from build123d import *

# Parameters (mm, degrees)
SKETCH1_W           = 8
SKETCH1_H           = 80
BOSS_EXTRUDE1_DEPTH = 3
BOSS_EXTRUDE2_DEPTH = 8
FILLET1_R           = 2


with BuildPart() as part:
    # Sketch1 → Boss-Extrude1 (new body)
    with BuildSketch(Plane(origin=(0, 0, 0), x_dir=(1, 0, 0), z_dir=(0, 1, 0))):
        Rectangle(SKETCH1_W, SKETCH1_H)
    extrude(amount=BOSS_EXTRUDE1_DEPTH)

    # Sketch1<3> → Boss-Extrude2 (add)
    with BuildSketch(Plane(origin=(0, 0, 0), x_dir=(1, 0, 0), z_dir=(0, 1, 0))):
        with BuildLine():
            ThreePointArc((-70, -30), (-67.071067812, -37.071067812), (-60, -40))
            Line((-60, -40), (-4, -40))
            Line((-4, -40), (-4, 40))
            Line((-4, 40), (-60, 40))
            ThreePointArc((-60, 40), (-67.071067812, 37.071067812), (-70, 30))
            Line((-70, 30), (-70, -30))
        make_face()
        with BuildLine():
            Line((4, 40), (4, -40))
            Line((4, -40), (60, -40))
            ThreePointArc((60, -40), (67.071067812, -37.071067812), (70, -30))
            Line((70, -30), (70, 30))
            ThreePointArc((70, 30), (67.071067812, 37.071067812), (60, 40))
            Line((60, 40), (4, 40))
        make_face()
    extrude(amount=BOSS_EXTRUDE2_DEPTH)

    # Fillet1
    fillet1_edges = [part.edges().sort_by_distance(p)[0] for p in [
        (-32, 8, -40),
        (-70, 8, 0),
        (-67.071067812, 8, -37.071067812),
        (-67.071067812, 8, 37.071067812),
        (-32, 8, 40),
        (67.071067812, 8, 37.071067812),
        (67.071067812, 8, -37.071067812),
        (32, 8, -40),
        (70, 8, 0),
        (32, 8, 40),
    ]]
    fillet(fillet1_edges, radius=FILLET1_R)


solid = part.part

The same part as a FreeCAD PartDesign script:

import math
import FreeCAD as App
import Part
import Sketcher

V = App.Vector
Q = App.Units.Quantity


def edges_at(feature, points):
    """Names of the edges that pass closest to the given points."""
    edges = feature.Shape.Edges
    near = lambda p: min(range(len(edges)), key=lambda i: edges[i].distToShape(Part.Vertex(*p))[0])
    return sorted({f"Edge{near(p) + 1}" for p in points})

doc = App.newDocument("Part")
body = doc.addObject("PartDesign::Body", "Body")

# Sketch on XZ plane
sketch1 = doc.addObject("Sketcher::SketchObject", "Sketch")
body.addObject(sketch1)
sketch1.AttachmentSupport = (doc.XZ_Plane, [""])
sketch1.MapMode = "FlatFace"
sketch1.addGeometry(Part.LineSegment(V(-4, -40, 0), V(-4, 40, 0)), False)
sketch1.addGeometry(Part.LineSegment(V(-4, 40, 0), V(4, 40, 0)), False)
sketch1.addGeometry(Part.LineSegment(V(4, 40, 0), V(4, -40, 0)), False)
sketch1.addGeometry(Part.LineSegment(V(4, -40, 0), V(-4, -40, 0)), False)
sketch1.addConstraint(Sketcher.Constraint("Coincident", 0, 2, 1, 1))
sketch1.addConstraint(Sketcher.Constraint("Coincident", 1, 2, 2, 1))
sketch1.addConstraint(Sketcher.Constraint("Coincident", 2, 2, 3, 1))
sketch1.addConstraint(Sketcher.Constraint("Coincident", 3, 2, 0, 1))
sketch1.addConstraint(Sketcher.Constraint("Vertical", 0))
sketch1.addConstraint(Sketcher.Constraint("Horizontal", 1))
sketch1.addConstraint(Sketcher.Constraint("Vertical", 2))
sketch1.addConstraint(Sketcher.Constraint("Horizontal", 3))
sketch1.addConstraint(Sketcher.Constraint("Symmetric", 0, 2, 2, 2, -1, 1))
sketch1.addConstraint(Sketcher.Constraint("DistanceX", 1, 1, 1, 2, Q("8 mm")))
sketch1.addConstraint(Sketcher.Constraint("DistanceY", 0, 1, 0, 2, Q("80 mm")))
pad1 = doc.addObject("PartDesign::Pad", "Pad")
body.addObject(pad1)
pad1.Profile = sketch1
pad1.Length = 3
pad1.Reversed = True

# Sketch on XZ plane
sketch2 = doc.addObject("Sketcher::SketchObject", "Sketch001")
body.addObject(sketch2)
sketch2.AttachmentSupport = (doc.XZ_Plane, [""])
sketch2.MapMode = "FlatFace"
sketch2.addGeometry(Part.ArcOfCircle(Part.Circle(V(-60, 30, 0), V(0, 0, 1), 10), math.radians(90), math.radians(180)), False)
sketch2.addGeometry(Part.LineSegment(V(-60, 40, 0), V(-4, 40, 0)), False)
sketch2.addGeometry(Part.LineSegment(V(-4, 40, 0), V(-4, -40, 0)), False)
sketch2.addGeometry(Part.LineSegment(V(-4, -40, 0), V(-60, -40, 0)), False)
sketch2.addGeometry(Part.ArcOfCircle(Part.Circle(V(-60, -30, 0), V(0, 0, 1), 10), math.radians(180), math.radians(270)), False)
sketch2.addGeometry(Part.LineSegment(V(-70, -30, 0), V(-70, 30, 0)), False)
sketch2.addGeometry(Part.LineSegment(V(4, -40, 0), V(4, 40, 0)), False)
sketch2.addGeometry(Part.LineSegment(V(4, 40, 0), V(60, 40, 0)), False)
sketch2.addGeometry(Part.ArcOfCircle(Part.Circle(V(60, 30, 0), V(0, 0, 1), 10), math.radians(0), math.radians(90)), False)
sketch2.addGeometry(Part.LineSegment(V(70, 30, 0), V(70, -30, 0)), False)
sketch2.addGeometry(Part.ArcOfCircle(Part.Circle(V(60, -30, 0), V(0, 0, 1), 10), math.radians(-90), math.radians(0)), False)
sketch2.addGeometry(Part.LineSegment(V(60, -40, 0), V(4, -40, 0)), False)
sketch2.addConstraint(Sketcher.Constraint("Tangent", 0, 1, 1, 1))
sketch2.addConstraint(Sketcher.Constraint("Coincident", 1, 2, 2, 1))
sketch2.addConstraint(Sketcher.Constraint("Coincident", 2, 2, 3, 1))
sketch2.addConstraint(Sketcher.Constraint("Tangent", 3, 2, 4, 2))
sketch2.addConstraint(Sketcher.Constraint("Tangent", 4, 1, 5, 1))
sketch2.addConstraint(Sketcher.Constraint("Tangent", 5, 2, 0, 2))
sketch2.addConstraint(Sketcher.Constraint("Coincident", 6, 2, 7, 1))
sketch2.addConstraint(Sketcher.Constraint("Tangent", 7, 2, 8, 2))
sketch2.addConstraint(Sketcher.Constraint("Tangent", 8, 1, 9, 1))
sketch2.addConstraint(Sketcher.Constraint("Tangent", 9, 2, 10, 2))
sketch2.addConstraint(Sketcher.Constraint("Tangent", 10, 1, 11, 1))
sketch2.addConstraint(Sketcher.Constraint("Coincident", 11, 2, 6, 1))
sketch2.addConstraint(Sketcher.Constraint("Horizontal", 1))
sketch2.addConstraint(Sketcher.Constraint("Vertical", 2))
sketch2.addConstraint(Sketcher.Constraint("Horizontal", 3))
sketch2.addConstraint(Sketcher.Constraint("Vertical", 5))
sketch2.addConstraint(Sketcher.Constraint("Vertical", 6))
sketch2.addConstraint(Sketcher.Constraint("Horizontal", 7))
sketch2.addConstraint(Sketcher.Constraint("Vertical", 9))
sketch2.addConstraint(Sketcher.Constraint("Horizontal", 11))
sketch2.addConstraint(Sketcher.Constraint("Equal", 0, 4))
sketch2.addConstraint(Sketcher.Constraint("Equal", 4, 8))
sketch2.addConstraint(Sketcher.Constraint("Equal", 8, 10))
sketch2.addConstraint(Sketcher.Constraint("Symmetric", 4, 3, 8, 3, -1, 1))
sketch2.addConstraint(Sketcher.Constraint("Symmetric", 1, 2, 11, 2, -1, 1))
sketch2.addConstraint(Sketcher.Constraint("Horizontal", 0, 3, 8, 3))
sketch2.addConstraint(Sketcher.Constraint("Radius", 0, Q("10 mm")))
sketch2.addConstraint(Sketcher.Constraint("DistanceX", 1, 1, 1, 2, Q("56 mm")))
sketch2.addConstraint(Sketcher.Constraint("DistanceY", 2, 2, 2, 1, Q("80 mm")))
sketch2.addConstraint(Sketcher.Constraint("DistanceX", 0, 3, -1, 1, Q("60 mm")))
pad2 = doc.addObject("PartDesign::Pad", "Pad001")
body.addObject(pad2)
pad2.Profile = sketch2
pad2.Length = 8
pad2.Reversed = True
doc.recompute()

fillet = doc.addObject("PartDesign::Fillet", "Fillet")
body.addObject(fillet)
fillet.Base = (pad2, edges_at(pad2, [
    (-32, 8, -40),
    (-70, 8, 0),
    (-67.071, 8, -37.071),
    (-67.071, 8, 37.071),
    (-32, 8, 40),
    (67.071, 8, 37.071),
    (67.071, 8, -37.071),
    (32, 8, -40),
    (70, 8, 0),
    (32, 8, 40),
]))
fillet.Radius = 2

doc.recompute()
